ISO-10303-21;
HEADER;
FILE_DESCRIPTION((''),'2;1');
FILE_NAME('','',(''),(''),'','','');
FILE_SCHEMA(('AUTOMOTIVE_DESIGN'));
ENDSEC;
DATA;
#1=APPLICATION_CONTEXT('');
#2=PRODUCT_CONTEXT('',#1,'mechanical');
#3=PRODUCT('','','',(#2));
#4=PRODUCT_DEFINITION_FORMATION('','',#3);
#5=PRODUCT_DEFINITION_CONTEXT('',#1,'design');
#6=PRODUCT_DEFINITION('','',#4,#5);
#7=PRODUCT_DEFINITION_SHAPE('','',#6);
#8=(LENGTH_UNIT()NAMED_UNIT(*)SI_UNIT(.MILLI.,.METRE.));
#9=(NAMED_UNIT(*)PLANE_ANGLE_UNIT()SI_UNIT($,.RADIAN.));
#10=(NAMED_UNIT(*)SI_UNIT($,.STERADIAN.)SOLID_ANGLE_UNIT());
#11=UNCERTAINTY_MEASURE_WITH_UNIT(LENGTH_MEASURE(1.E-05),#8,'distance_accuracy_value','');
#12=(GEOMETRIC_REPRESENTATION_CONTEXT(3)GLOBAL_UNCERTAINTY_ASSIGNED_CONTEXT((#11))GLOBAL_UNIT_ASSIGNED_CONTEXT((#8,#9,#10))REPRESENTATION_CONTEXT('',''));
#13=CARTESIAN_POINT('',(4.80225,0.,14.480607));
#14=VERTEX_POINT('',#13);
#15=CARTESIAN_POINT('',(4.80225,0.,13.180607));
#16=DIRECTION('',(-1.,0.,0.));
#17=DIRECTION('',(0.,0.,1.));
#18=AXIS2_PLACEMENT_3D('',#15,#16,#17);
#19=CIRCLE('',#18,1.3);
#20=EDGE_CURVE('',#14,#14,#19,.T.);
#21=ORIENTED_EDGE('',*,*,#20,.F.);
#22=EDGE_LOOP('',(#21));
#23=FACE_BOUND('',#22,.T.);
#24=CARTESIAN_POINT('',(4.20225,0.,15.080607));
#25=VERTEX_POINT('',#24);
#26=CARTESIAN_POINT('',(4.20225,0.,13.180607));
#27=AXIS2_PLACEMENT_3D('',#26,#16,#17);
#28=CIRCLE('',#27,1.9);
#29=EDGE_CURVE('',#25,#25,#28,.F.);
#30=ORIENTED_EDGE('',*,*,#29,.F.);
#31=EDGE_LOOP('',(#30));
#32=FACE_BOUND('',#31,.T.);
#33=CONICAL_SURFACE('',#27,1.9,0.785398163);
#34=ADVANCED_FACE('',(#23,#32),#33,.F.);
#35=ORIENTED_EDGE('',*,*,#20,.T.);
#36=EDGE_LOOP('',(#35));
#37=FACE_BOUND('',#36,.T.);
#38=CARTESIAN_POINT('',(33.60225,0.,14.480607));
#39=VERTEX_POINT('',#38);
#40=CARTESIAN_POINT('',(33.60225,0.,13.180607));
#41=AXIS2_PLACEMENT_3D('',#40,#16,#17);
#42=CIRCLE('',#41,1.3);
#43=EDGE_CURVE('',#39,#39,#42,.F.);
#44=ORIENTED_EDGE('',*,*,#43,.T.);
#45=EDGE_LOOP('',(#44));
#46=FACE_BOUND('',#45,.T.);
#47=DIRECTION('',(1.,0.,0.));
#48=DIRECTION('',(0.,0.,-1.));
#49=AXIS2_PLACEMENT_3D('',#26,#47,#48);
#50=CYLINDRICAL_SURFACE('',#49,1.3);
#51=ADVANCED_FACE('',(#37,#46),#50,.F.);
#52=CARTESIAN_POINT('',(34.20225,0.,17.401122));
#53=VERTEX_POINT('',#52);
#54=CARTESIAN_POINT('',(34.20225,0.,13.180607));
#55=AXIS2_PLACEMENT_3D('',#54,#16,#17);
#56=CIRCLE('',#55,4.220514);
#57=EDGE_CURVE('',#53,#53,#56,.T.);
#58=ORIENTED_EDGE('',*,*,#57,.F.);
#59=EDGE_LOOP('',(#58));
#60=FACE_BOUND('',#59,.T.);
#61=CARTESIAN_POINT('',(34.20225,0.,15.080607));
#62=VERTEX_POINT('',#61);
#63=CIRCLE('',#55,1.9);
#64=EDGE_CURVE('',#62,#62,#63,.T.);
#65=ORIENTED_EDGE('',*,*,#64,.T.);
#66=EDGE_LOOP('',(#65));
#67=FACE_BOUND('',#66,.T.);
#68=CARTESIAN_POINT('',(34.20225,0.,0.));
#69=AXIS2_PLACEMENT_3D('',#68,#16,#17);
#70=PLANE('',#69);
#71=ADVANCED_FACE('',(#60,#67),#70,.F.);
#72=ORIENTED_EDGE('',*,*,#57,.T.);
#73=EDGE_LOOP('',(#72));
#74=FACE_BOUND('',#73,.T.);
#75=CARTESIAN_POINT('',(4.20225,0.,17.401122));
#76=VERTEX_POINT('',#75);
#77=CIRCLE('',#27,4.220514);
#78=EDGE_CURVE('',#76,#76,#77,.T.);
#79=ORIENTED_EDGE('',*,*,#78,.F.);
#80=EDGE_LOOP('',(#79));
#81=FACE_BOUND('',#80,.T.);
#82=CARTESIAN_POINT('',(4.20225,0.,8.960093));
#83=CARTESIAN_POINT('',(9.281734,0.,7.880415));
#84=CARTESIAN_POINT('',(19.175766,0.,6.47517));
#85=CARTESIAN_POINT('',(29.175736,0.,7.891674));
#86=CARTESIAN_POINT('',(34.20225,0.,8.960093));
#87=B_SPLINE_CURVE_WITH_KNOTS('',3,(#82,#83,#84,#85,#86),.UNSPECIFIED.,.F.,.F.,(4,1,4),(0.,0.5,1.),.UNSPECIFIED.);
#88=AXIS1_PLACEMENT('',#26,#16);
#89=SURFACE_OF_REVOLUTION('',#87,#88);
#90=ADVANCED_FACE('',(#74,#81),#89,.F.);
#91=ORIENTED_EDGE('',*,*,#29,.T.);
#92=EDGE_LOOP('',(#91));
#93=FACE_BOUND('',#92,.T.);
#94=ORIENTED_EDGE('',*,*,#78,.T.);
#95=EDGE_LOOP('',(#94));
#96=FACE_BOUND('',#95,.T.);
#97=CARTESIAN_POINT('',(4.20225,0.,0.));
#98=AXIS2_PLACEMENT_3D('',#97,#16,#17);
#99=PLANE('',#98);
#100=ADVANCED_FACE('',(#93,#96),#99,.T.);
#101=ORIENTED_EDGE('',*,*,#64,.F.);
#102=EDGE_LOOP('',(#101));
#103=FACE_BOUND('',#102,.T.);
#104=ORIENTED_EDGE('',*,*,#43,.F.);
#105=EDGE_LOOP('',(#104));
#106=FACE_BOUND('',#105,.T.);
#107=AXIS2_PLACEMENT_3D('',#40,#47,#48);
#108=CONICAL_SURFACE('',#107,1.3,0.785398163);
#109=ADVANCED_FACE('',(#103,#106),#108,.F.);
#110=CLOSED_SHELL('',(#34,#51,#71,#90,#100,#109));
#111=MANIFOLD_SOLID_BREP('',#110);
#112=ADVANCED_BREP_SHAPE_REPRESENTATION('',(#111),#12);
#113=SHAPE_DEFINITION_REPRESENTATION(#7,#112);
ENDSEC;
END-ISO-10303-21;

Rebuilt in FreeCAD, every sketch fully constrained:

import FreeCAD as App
import Part
import Sketcher

V = App.Vector
Q = App.Units.Quantity


def edges_at(feature, points):
    """Names of the edges that pass closest to the given points."""
    edges = feature.Shape.Edges
    near = lambda p: min(range(len(edges)), key=lambda i: edges[i].distToShape(Part.Vertex(*p))[0])
    return sorted({f"Edge{near(p) + 1}" for p in points})

doc = App.newDocument("Part")
body = doc.addObject("PartDesign::Body", "Body")

sketch1 = doc.addObject("Sketcher::SketchObject", "Sketch")
body.addObject(sketch1)
sketch1.AttachmentSupport = (doc.XZ_Plane, [""])
sketch1.MapMode = "FlatFace"
sketch1.addGeometry([
    Part.LineSegment(V(4.20225, 8.960093, 0), V(4.20225, 13.180607, 0)),
    Part.LineSegment(V(4.20225, 13.180607, 0), V(34.20225, 13.180607, 0)),
    Part.LineSegment(V(34.20225, 13.180607, 0), V(34.20225, 8.960093, 0)),
    Part.BSplineCurve([V(4.20225, 8.960093, 0), V(9.281734, 7.880415, 0), V(19.175766, 6.47517, 0), V(29.175736, 7.891674, 0), V(34.20225, 8.960093, 0)], [4, 1, 4], [0, 0.5, 1], False, 3, [1, 1, 1, 1, 1], False),
], False)
sketch1.addGeometry(Part.LineSegment(V(4.20225, 13.180607, 0), V(34.20225, 13.180607, 0)), True)
sketch1.addConstraint([
    Sketcher.Constraint("Block", 3),
    Sketcher.Constraint("Coincident", 0, 2, 1, 1),
    Sketcher.Constraint("Coincident", 1, 2, 2, 1),
    Sketcher.Constraint("Coincident", 2, 2, 3, 2),
    Sketcher.Constraint("Coincident", 3, 1, 0, 1),
    Sketcher.Constraint("Vertical", 0),
    Sketcher.Constraint("Horizontal", 1),
    Sketcher.Constraint("Vertical", 2),
    Sketcher.Constraint("Horizontal", 4),
    Sketcher.Constraint("Coincident", 4, 1, 0, 2),
    Sketcher.Constraint("Vertical", 2, 2, 4, 2),
    Sketcher.Constraint("DistanceY", 0, 1, 0, 2, Q("4.220514 mm")),
])
revolution = doc.addObject("PartDesign::Revolution", "Revolution")
body.addObject(revolution)
revolution.Profile = sketch1
revolution.ReferenceAxis = (sketch1, ["Axis0"])
revolution.Angle = 360

sketch2 = doc.addObject("Sketcher::SketchObject", "Sketch001")
body.addObject(sketch2)
sketch2.AttachmentSupport = (doc.YZ_Plane, [""])
sketch2.MapMode = "FlatFace"
sketch2.AttachmentOffset = App.Placement(V(0, 0, 34.20225), App.Rotation())
sketch2.addGeometry(Part.Circle(V(0, 13.2, 0), V(0, 0, 1), 1.3), False)
sketch2.addConstraint([
    Sketcher.Constraint("PointOnObject", 0, 3, -2),
    Sketcher.Constraint("Diameter", 0, Q("2.6 mm")),
    Sketcher.Constraint("DistanceY", -1, 1, 0, 3, Q("13.180607 mm")),
])
pocket1 = doc.addObject("PartDesign::Pocket", "Pocket")
body.addObject(pocket1)
pocket1.Profile = sketch2
pocket1.Type = "ThroughAll"
doc.recompute()

chamfer = doc.addObject("PartDesign::Chamfer", "Chamfer")
body.addObject(chamfer)
chamfer.Base = (pocket1, edges_at(pocket1, [(4.202, 0, 14.481), (34.202, 0, 14.481)]))
chamfer.Size = 0.6

doc.recompute()
